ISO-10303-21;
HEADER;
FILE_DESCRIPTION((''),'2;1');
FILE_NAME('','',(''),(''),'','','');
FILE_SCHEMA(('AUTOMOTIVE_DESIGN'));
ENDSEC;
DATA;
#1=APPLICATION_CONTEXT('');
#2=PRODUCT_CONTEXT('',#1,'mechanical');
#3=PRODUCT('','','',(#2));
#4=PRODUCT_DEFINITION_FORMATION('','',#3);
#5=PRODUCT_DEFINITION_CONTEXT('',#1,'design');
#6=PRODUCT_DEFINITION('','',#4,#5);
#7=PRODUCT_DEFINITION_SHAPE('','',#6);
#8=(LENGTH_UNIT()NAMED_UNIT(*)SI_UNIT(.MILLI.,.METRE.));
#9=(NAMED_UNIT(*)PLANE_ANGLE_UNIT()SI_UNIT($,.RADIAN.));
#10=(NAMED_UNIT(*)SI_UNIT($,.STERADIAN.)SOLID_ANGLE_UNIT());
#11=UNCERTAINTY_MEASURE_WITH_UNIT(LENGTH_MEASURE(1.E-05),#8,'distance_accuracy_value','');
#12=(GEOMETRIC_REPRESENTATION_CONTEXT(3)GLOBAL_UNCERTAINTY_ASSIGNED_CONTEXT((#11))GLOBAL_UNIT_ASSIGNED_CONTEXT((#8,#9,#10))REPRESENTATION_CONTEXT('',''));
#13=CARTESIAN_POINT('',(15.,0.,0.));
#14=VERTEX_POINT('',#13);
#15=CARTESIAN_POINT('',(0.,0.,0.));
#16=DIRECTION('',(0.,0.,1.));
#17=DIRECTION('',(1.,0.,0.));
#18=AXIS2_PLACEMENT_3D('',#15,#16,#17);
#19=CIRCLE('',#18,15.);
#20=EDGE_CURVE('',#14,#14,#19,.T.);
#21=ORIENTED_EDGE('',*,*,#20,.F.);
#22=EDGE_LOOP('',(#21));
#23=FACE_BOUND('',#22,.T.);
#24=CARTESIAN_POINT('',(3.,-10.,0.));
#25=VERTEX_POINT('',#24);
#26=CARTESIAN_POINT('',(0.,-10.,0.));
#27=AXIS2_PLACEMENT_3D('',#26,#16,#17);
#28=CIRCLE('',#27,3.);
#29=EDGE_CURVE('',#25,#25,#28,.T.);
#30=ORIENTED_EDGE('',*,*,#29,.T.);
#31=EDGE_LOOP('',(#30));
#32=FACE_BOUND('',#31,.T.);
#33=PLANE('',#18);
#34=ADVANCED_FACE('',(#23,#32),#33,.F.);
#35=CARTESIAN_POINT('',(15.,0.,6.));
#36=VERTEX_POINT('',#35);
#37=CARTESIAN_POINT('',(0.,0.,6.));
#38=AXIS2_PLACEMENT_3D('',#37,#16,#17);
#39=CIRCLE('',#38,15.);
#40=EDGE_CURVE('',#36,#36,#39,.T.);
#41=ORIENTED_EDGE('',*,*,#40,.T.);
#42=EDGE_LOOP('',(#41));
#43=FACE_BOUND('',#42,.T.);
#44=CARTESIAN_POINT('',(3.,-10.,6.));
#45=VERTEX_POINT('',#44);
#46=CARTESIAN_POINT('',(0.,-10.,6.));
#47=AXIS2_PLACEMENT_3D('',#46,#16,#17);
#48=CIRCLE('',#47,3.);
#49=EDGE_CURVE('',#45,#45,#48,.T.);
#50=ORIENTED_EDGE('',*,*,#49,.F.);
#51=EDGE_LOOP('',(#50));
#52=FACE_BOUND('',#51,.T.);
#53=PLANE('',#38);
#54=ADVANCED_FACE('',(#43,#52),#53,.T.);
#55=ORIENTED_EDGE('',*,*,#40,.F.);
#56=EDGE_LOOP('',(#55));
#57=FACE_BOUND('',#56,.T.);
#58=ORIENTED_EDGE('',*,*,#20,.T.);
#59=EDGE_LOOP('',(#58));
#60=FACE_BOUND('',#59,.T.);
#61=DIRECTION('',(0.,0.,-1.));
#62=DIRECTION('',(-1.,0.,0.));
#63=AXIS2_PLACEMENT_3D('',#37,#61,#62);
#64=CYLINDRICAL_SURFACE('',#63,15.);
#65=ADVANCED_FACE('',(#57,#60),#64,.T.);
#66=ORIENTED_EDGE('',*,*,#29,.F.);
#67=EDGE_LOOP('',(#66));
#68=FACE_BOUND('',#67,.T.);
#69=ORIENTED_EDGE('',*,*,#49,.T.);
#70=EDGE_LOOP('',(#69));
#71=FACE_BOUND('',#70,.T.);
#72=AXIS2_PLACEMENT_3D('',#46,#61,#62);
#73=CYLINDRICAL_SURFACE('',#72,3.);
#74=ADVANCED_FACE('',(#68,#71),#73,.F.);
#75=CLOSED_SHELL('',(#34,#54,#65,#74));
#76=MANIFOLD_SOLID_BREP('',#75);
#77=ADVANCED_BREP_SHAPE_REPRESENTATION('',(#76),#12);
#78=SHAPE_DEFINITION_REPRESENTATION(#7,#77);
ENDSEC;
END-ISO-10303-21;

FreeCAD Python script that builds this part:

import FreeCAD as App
import Part
import Sketcher

doc = App.newDocument("Part")
params = doc.addObject("Spreadsheet::Sheet", "Params")
for row, (alias, value) in enumerate([
    ("sketch1_diameter", "30 mm"),
    ("sketch1_diameter2", "6 mm"),
    ("pad1_length", "6 mm"),
], start=1):
    params.set(f"A{row}", alias)
    params.set(f"B{row}", "=" + value)
    params.setAlias(f"B{row}", alias)

body = doc.addObject("PartDesign::Body", "Body")

sketch1 = body.newObject("Sketcher::SketchObject", "Sketch")
sketch1.AttachmentSupport = (doc.getObject("XY_Plane"), [""])
sketch1.MapMode = "FlatFace"
sketch1.addGeometry(Part.Circle(App.Vector(0, 0, 0), App.Vector(0, 0, 1), 15), False)
sketch1.addGeometry(Part.Circle(App.Vector(0, -10, 0), App.Vector(0, 0, 1), 3), False)
sketch1.addConstraint(Sketcher.Constraint("Coincident", 0, 3, -1, 1))
sketch1.addConstraint(Sketcher.Constraint("PointOnObject", 1, 3, -2))
sketch1.addConstraint(Sketcher.Constraint("Diameter", 0, 30.0))
sketch1.addConstraint(Sketcher.Constraint("Diameter", 1, 6.0))
sketch1.addConstraint(Sketcher.Constraint("DistanceY", 1, 3, -1, 1, 10.0))
sketch1.setExpression("Constraints[2]", "Params.sketch1_diameter")
sketch1.setExpression("Constraints[3]", "Params.sketch1_diameter2")
pad1 = body.newObject("PartDesign::Pad", "Pad")
pad1.Profile = sketch1
pad1.setExpression("Length", "Params.pad1_length")

doc.recompute()
